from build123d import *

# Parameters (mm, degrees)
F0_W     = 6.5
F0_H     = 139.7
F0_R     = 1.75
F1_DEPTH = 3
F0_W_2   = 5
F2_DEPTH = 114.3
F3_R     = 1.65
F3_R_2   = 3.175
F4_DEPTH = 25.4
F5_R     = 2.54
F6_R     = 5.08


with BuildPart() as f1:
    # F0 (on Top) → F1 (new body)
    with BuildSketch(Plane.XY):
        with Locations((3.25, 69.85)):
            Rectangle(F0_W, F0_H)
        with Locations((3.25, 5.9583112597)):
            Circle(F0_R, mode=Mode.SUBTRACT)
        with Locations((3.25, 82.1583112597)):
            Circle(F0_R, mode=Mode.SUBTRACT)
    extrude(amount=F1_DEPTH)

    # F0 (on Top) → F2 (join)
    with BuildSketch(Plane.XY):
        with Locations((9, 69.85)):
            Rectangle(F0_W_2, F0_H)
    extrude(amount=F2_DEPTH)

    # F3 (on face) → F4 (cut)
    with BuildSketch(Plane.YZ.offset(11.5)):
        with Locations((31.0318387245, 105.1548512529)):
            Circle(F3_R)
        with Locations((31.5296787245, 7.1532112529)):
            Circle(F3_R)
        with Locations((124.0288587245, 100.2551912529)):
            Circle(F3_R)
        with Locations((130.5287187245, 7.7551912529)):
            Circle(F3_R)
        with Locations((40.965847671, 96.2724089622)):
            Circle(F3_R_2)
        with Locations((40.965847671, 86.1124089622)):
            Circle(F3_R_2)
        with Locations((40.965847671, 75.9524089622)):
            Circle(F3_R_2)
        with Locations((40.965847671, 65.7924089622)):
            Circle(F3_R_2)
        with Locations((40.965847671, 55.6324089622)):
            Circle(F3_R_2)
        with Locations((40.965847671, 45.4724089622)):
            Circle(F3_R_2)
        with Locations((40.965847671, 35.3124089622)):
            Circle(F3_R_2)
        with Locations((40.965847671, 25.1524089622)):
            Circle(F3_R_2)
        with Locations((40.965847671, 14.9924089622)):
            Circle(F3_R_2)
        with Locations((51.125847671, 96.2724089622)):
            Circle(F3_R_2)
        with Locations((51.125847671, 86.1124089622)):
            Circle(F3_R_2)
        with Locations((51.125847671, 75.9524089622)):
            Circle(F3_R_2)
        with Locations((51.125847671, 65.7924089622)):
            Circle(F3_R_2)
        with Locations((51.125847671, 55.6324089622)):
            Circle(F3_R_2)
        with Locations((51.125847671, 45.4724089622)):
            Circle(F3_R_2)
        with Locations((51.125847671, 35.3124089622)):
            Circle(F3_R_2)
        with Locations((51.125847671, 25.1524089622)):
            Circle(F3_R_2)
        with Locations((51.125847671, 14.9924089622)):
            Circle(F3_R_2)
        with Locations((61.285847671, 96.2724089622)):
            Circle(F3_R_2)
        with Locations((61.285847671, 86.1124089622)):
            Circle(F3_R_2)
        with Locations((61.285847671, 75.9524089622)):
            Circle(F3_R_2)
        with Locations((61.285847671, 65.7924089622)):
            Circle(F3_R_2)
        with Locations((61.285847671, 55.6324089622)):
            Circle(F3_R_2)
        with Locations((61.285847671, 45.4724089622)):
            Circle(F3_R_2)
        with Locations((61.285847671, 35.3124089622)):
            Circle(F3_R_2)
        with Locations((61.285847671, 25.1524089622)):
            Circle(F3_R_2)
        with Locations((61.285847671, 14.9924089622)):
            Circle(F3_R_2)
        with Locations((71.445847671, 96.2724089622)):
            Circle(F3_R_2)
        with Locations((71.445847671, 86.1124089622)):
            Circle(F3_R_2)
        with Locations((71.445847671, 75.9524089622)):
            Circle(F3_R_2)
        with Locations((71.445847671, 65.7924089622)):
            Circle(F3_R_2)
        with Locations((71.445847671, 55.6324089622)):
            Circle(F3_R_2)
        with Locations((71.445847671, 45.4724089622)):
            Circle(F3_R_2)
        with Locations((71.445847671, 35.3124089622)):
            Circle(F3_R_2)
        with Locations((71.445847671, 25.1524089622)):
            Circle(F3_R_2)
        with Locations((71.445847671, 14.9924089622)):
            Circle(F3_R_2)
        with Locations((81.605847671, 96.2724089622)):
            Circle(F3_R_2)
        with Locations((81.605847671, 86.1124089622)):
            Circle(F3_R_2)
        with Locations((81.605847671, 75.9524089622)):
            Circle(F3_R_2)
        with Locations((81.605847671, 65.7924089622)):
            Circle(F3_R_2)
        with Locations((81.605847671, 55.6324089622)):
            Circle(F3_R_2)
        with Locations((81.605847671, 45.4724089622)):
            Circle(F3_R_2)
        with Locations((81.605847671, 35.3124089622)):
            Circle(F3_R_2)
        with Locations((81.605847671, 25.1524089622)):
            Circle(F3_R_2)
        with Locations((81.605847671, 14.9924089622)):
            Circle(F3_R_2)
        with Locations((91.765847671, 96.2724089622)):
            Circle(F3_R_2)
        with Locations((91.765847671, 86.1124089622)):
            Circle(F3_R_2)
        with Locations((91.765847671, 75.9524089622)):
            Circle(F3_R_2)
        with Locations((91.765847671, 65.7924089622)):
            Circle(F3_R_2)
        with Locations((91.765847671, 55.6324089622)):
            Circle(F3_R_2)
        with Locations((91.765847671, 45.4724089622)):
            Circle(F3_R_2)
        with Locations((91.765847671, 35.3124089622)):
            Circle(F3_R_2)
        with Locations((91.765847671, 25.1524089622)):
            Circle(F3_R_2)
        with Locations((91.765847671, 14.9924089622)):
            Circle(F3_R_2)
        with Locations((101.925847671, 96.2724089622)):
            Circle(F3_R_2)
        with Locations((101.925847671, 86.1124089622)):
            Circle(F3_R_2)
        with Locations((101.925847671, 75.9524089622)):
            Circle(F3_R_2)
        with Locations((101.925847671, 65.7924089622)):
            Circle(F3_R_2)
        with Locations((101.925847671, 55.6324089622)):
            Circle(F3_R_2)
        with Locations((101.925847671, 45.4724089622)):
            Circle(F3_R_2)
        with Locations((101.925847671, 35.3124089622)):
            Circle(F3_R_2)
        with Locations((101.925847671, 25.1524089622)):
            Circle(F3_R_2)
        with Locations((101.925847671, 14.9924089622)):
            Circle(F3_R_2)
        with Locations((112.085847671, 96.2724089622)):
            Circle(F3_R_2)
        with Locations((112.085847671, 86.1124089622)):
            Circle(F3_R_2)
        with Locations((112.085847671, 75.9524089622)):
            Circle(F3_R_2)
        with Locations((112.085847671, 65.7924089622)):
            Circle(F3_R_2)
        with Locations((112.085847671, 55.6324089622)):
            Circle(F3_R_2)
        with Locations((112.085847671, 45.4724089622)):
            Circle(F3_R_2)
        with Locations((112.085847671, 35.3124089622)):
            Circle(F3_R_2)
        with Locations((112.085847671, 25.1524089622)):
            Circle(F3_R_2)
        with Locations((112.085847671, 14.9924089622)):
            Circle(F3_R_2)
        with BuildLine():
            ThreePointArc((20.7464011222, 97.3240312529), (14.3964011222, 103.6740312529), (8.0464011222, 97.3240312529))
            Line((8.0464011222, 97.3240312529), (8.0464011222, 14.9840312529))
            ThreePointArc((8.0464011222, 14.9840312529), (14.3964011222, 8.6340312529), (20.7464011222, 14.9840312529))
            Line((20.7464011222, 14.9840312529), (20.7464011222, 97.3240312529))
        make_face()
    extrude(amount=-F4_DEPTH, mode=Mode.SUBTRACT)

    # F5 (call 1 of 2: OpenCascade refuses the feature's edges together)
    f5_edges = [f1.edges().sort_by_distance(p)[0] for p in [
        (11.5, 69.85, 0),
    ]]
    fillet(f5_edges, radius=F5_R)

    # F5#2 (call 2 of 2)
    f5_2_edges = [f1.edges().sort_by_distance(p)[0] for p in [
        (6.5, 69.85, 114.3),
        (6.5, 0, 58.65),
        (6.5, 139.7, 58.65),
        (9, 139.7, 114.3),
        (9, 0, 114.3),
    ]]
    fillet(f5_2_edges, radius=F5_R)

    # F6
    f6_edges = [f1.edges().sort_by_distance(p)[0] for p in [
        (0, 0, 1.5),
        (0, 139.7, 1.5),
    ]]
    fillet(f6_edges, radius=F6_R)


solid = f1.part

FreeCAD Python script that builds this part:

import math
import FreeCAD as App
import Part
import Sketcher
Q = App.Units.Quantity


def edges_at(feature, points):
    """Names of the edges that pass closest to the given points."""
    edges = feature.Shape.Edges
    near = lambda p: min(range(len(edges)), key=lambda i: edges[i].distToShape(Part.Vertex(*p))[0])
    return sorted({f"Edge{near(p) + 1}" for p in points})

doc = App.newDocument("Part")
body = doc.addObject("PartDesign::Body", "Body")

sketch1 = body.newObject("Sketcher::SketchObject", "Sketch")
sketch1.AttachmentSupport = (doc.getObject("XY_Plane"), [""])
sketch1.MapMode = "FlatFace"
sketch1.addGeometry([
    Part.LineSegment(App.Vector(0, 139.7, 0), App.Vector(0, 0, 0)),
    Part.LineSegment(App.Vector(0, 0, 0), App.Vector(6.5, 0, 0)),
    Part.LineSegment(App.Vector(6.5, 0, 0), App.Vector(6.5, 139.7, 0)),
    Part.LineSegment(App.Vector(6.5, 139.7, 0), App.Vector(0, 139.7, 0)),
    Part.Circle(App.Vector(3.25, 5.958311, 0), App.Vector(0, 0, 1), 1.75),
    Part.Circle(App.Vector(3.25, 82.158311, 0), App.Vector(0, 0, 1), 1.75),
], False)
sketch1.addConstraint([
    Sketcher.Constraint("Coincident", 0, 2, 1, 1),
    Sketcher.Constraint("Coincident", 1, 2, 2, 1),
    Sketcher.Constraint("Coincident", 2, 2, 3, 1),
    Sketcher.Constraint("Coincident", 3, 2, 0, 1),
    Sketcher.Constraint("Vertical", 0),
    Sketcher.Constraint("Horizontal", 1),
    Sketcher.Constraint("Vertical", 2),
    Sketcher.Constraint("Horizontal", 3),
    Sketcher.Constraint("Coincident", 0, 2, -1, 1),
    Sketcher.Constraint("Equal", 4, 5),
    Sketcher.Constraint("Vertical", 4, 3, 5, 3),
    Sketcher.Constraint("DistanceY", 0, 2, 0, 1, Q("5.5 in")),
    Sketcher.Constraint("DistanceY", 4, 3, 5, 3, Q("3 in")),
    Sketcher.Constraint("Diameter", 4, Q("3.5 mm")),
    Sketcher.Constraint("DistanceX", 1, 1, 1, 2, Q("6.5 mm")),
    Sketcher.Constraint("DistanceX", -1, 1, 4, 3, Q("3.25 mm")),
    Sketcher.Constraint("DistanceY", -1, 1, 4, 3, Q("5.958311 mm")),
])
pad1 = body.newObject("PartDesign::Pad", "Pad")
pad1.Profile = sketch1
pad1.Length = 3

sketch2 = body.newObject("Sketcher::SketchObject", "Sketch001")
sketch2.AttachmentSupport = (doc.getObject("XY_Plane"), [""])
sketch2.MapMode = "FlatFace"
sketch2.addGeometry([
    Part.LineSegment(App.Vector(6.5, 139.7, 0), App.Vector(6.5, 0, 0)),
    Part.LineSegment(App.Vector(6.5, 0, 0), App.Vector(11.5, 0, 0)),
    Part.LineSegment(App.Vector(11.5, 0, 0), App.Vector(11.5, 139.7, 0)),
    Part.LineSegment(App.Vector(11.5, 139.7, 0), App.Vector(6.5, 139.7, 0)),
], False)
sketch2.addConstraint([
    Sketcher.Constraint("Coincident", 0, 2, 1, 1),
    Sketcher.Constraint("Coincident", 1, 2, 2, 1),
    Sketcher.Constraint("Coincident", 2, 2, 3, 1),
    Sketcher.Constraint("Coincident", 3, 2, 0, 1),
    Sketcher.Constraint("Vertical", 0),
    Sketcher.Constraint("Horizontal", 1),
    Sketcher.Constraint("Vertical", 2),
    Sketcher.Constraint("Horizontal", 3),
    Sketcher.Constraint("PointOnObject", 0, 2, -1),
    Sketcher.Constraint("DistanceY", 0, 2, 0, 1, Q("5.5 in")),
    Sketcher.Constraint("DistanceX", 1, 1, 1, 2, Q("5 mm")),
    Sketcher.Constraint("DistanceX", -1, 1, 0, 2, Q("6.5 mm")),
])
pad2 = body.newObject("PartDesign::Pad", "Pad001")
pad2.Profile = sketch2
pad2.Length = Q("4.5 in")

sketch3 = body.newObject("Sketcher::SketchObject", "Sketch002")
sketch3.AttachmentSupport = (doc.getObject("YZ_Plane"), [""])
sketch3.MapMode = "FlatFace"
sketch3.AttachmentOffset = App.Placement(App.Vector(0, 0, 11.5), App.Rotation())
sketch3.addGeometry([
    Part.Circle(App.Vector(31.031839, 105.154851, 0), App.Vector(0, 0, 1), 1.65),
    Part.Circle(App.Vector(31.529679, 7.153211, 0), App.Vector(0, 0, 1), 1.65),
    Part.Circle(App.Vector(124.028859, 100.255191, 0), App.Vector(0, 0, 1), 1.65),
    Part.Circle(App.Vector(130.528719, 7.755191, 0), App.Vector(0, 0, 1), 1.65),
    Part.Circle(App.Vector(40.965848, 96.272409, 0), App.Vector(0, 0, 1), 3.175),
    Part.Circle(App.Vector(40.965848, 86.112409, 0), App.Vector(0, 0, 1), 3.175),
    Part.Circle(App.Vector(40.965848, 75.952409, 0), App.Vector(0, 0, 1), 3.175),
    Part.Circle(App.Vector(40.965848, 65.792409, 0), App.Vector(0, 0, 1), 3.175),
    Part.Circle(App.Vector(40.965848, 55.632409, 0), App.Vector(0, 0, 1), 3.175),
    Part.Circle(App.Vector(40.965848, 45.472409, 0), App.Vector(0, 0, 1), 3.175),
    Part.Circle(App.Vector(40.965848, 35.312409, 0), App.Vector(0, 0, 1), 3.175),
    Part.Circle(App.Vector(40.965848, 25.152409, 0), App.Vector(0, 0, 1), 3.175),
    Part.Circle(App.Vector(40.965848, 14.992409, 0), App.Vector(0, 0, 1), 3.175),
    Part.Circle(App.Vector(51.125848, 96.272409, 0), App.Vector(0, 0, 1), 3.175),
    Part.Circle(App.Vector(51.125848, 86.112409, 0), App.Vector(0, 0, 1), 3.175),
    Part.Circle(App.Vector(51.125848, 75.952409, 0), App.Vector(0, 0, 1), 3.175),
    Part.Circle(App.Vector(51.125848, 65.792409, 0), App.Vector(0, 0, 1), 3.175),
    Part.Circle(App.Vector(51.125848, 55.632409, 0), App.Vector(0, 0, 1), 3.175),
    Part.Circle(App.Vector(51.125848, 45.472409, 0), App.Vector(0, 0, 1), 3.175),
    Part.Circle(App.Vector(51.125848, 35.312409, 0), App.Vector(0, 0, 1), 3.175),
    Part.Circle(App.Vector(51.125848, 25.152409, 0), App.Vector(0, 0, 1), 3.175),
    Part.Circle(App.Vector(51.125848, 14.992409, 0), App.Vector(0, 0, 1), 3.175),
    Part.Circle(App.Vector(61.285848, 96.272409, 0), App.Vector(0, 0, 1), 3.175),
    Part.Circle(App.Vector(61.285848, 86.112409, 0), App.Vector(0, 0, 1), 3.175),
    Part.Circle(App.Vector(61.285848, 75.952409, 0), App.Vector(0, 0, 1), 3.175),
    Part.Circle(App.Vector(61.285848, 65.792409, 0), App.Vector(0, 0, 1), 3.175),
    Part.Circle(App.Vector(61.285848, 55.632409, 0), App.Vector(0, 0, 1), 3.175),
    Part.Circle(App.Vector(61.285848, 45.472409, 0), App.Vector(0, 0, 1), 3.175),
    Part.Circle(App.Vector(61.285848, 35.312409, 0), App.Vector(0, 0, 1), 3.175),
    Part.Circle(App.Vector(61.285848, 25.152409, 0), App.Vector(0, 0, 1), 3.175),
    Part.Circle(App.Vector(61.285848, 14.992409, 0), App.Vector(0, 0, 1), 3.175),
    Part.Circle(App.Vector(71.445848, 96.272409, 0), App.Vector(0, 0, 1), 3.175),
    Part.Circle(App.Vector(71.445848, 86.112409, 0), App.Vector(0, 0, 1), 3.175),
    Part.Circle(App.Vector(71.445848, 75.952409, 0), App.Vector(0, 0, 1), 3.175),
    Part.Circle(App.Vector(71.445848, 65.792409, 0), App.Vector(0, 0, 1), 3.175),
    Part.Circle(App.Vector(71.445848, 55.632409, 0), App.Vector(0, 0, 1), 3.175),
    Part.Circle(App.Vector(71.445848, 45.472409, 0), App.Vector(0, 0, 1), 3.175),
    Part.Circle(App.Vector(71.445848, 35.312409, 0), App.Vector(0, 0, 1), 3.175),
    Part.Circle(App.Vector(71.445848, 25.152409, 0), App.Vector(0, 0, 1), 3.175),
    Part.Circle(App.Vector(71.445848, 14.992409, 0), App.Vector(0, 0, 1), 3.175),
    Part.Circle(App.Vector(81.605848, 96.272409, 0), App.Vector(0, 0, 1), 3.175),
    Part.Circle(App.Vector(81.605848, 86.112409, 0), App.Vector(0, 0, 1), 3.175),
    Part.Circle(App.Vector(81.605848, 75.952409, 0), App.Vector(0, 0, 1), 3.175),
    Part.Circle(App.Vector(81.605848, 65.792409, 0), App.Vector(0, 0, 1), 3.175),
    Part.Circle(App.Vector(81.605848, 55.632409, 0), App.Vector(0, 0, 1), 3.175),
    Part.Circle(App.Vector(81.605848, 45.472409, 0), App.Vector(0, 0, 1), 3.175),
    Part.Circle(App.Vector(81.605848, 35.312409, 0), App.Vector(0, 0, 1), 3.175),
    Part.Circle(App.Vector(81.605848, 25.152409, 0), App.Vector(0, 0, 1), 3.175),
    Part.Circle(App.Vector(81.605848, 14.992409, 0), App.Vector(0, 0, 1), 3.175),
    Part.Circle(App.Vector(91.765848, 96.272409, 0), App.Vector(0, 0, 1), 3.175),
    Part.Circle(App.Vector(91.765848, 86.112409, 0), App.Vector(0, 0, 1), 3.175),
    Part.Circle(App.Vector(91.765848, 75.952409, 0), App.Vector(0, 0, 1), 3.175),
    Part.Circle(App.Vector(91.765848, 65.792409, 0), App.Vector(0, 0, 1), 3.175),
    Part.Circle(App.Vector(91.765848, 55.632409, 0), App.Vector(0, 0, 1), 3.175),
    Part.Circle(App.Vector(91.765848, 45.472409, 0), App.Vector(0, 0, 1), 3.175),
    Part.Circle(App.Vector(91.765848, 35.312409, 0), App.Vector(0, 0, 1), 3.175),
    Part.Circle(App.Vector(91.765848, 25.152409, 0), App.Vector(0, 0, 1), 3.175),
    Part.Circle(App.Vector(91.765848, 14.992409, 0), App.Vector(0, 0, 1), 3.175),
    Part.Circle(App.Vector(101.925848, 96.272409, 0), App.Vector(0, 0, 1), 3.175),
    Part.Circle(App.Vector(101.925848, 86.112409, 0), App.Vector(0, 0, 1), 3.175),
    Part.Circle(App.Vector(101.925848, 75.952409, 0), App.Vector(0, 0, 1), 3.175),
    Part.Circle(App.Vector(101.925848, 65.792409, 0), App.Vector(0, 0, 1), 3.175),
    Part.Circle(App.Vector(101.925848, 55.632409, 0), App.Vector(0, 0, 1), 3.175),
    Part.Circle(App.Vector(101.925848, 45.472409, 0), App.Vector(0, 0, 1), 3.175),
    Part.Circle(App.Vector(101.925848, 35.312409, 0), App.Vector(0, 0, 1), 3.175),
    Part.Circle(App.Vector(101.925848, 25.152409, 0), App.Vector(0, 0, 1), 3.175),
    Part.Circle(App.Vector(101.925848, 14.992409, 0), App.Vector(0, 0, 1), 3.175),
    Part.Circle(App.Vector(112.085848, 96.272409, 0), App.Vector(0, 0, 1), 3.175),
    Part.Circle(App.Vector(112.085848, 86.112409, 0), App.Vector(0, 0, 1), 3.175),
    Part.Circle(App.Vector(112.085848, 75.952409, 0), App.Vector(0, 0, 1), 3.175),
    Part.Circle(App.Vector(112.085848, 65.792409, 0), App.Vector(0, 0, 1), 3.175),
    Part.Circle(App.Vector(112.085848, 55.632409, 0), App.Vector(0, 0, 1), 3.175),
    Part.Circle(App.Vector(112.085848, 45.472409, 0), App.Vector(0, 0, 1), 3.175),
    Part.Circle(App.Vector(112.085848, 35.312409, 0), App.Vector(0, 0, 1), 3.175),
    Part.Circle(App.Vector(112.085848, 25.152409, 0), App.Vector(0, 0, 1), 3.175),
    Part.Circle(App.Vector(112.085848, 14.992409, 0), App.Vector(0, 0, 1), 3.175),
    Part.ArcOfCircle(Part.Circle(App.Vector(14.396401, 97.324031, 0), App.Vector(0, 0, 1), 6.35), math.radians(0), math.radians(180)),
    Part.LineSegment(App.Vector(8.046401, 97.324031, 0), App.Vector(8.046401, 14.984031, 0)),
    Part.ArcOfCircle(Part.Circle(App.Vector(14.396401, 14.984031, 0), App.Vector(0, 0, 1), 6.35), math.radians(180), math.radians(360)),
    Part.LineSegment(App.Vector(20.746401, 14.984031, 0), App.Vector(20.746401, 97.324031, 0)),
], False)
sketch3.addConstraint([
    Sketcher.Constraint("Tangent", 76, 2, 77, 1),
    Sketcher.Constraint("Tangent", 77, 2, 78, 1),
    Sketcher.Constraint("Tangent", 78, 2, 79, 1),
    Sketcher.Constraint("Tangent", 79, 2, 76, 1),
    Sketcher.Constraint("Vertical", 77),
    Sketcher.Constraint("Vertical", 79),
    Sketcher.Constraint("Equal", 0, 1),
    Sketcher.Constraint("Equal", 1, 2),
    Sketcher.Constraint("Equal", 2, 3),
    Sketcher.Constraint("Equal", 4, 5),
    Sketcher.Constraint("Equal", 5, 6),
    Sketcher.Constraint("Equal", 6, 7),
    Sketcher.Constraint("Equal", 7, 8),
    Sketcher.Constraint("Equal", 8, 9),
    Sketcher.Constraint("Equal", 9, 10),
    Sketcher.Constraint("Equal", 10, 11),
    Sketcher.Constraint("Equal", 11, 12),
    Sketcher.Constraint("Equal", 12, 13),
    Sketcher.Constraint("Equal", 13, 14),
    Sketcher.Constraint("Equal", 14, 15),
    Sketcher.Constraint("Equal", 15, 16),
    Sketcher.Constraint("Equal", 16, 17),
    Sketcher.Constraint("Equal", 17, 18),
    Sketcher.Constraint("Equal", 18, 19),
    Sketcher.Constraint("Equal", 19, 20),
    Sketcher.Constraint("Equal", 20, 21),
    Sketcher.Constraint("Equal", 21, 22),
    Sketcher.Constraint("Equal", 22, 23),
    Sketcher.Constraint("Equal", 23, 24),
    Sketcher.Constraint("Equal", 24, 25),
    Sketcher.Constraint("Equal", 25, 26),
    Sketcher.Constraint("Equal", 26, 27),
    Sketcher.Constraint("Equal", 27, 28),
    Sketcher.Constraint("Equal", 28, 29),
    Sketcher.Constraint("Equal", 29, 30),
    Sketcher.Constraint("Equal", 30, 31),
    Sketcher.Constraint("Equal", 31, 32),
    Sketcher.Constraint("Equal", 32, 33),
    Sketcher.Constraint("Equal", 33, 34),
    Sketcher.Constraint("Equal", 34, 35),
    Sketcher.Constraint("Equal", 35, 36),
    Sketcher.Constraint("Equal", 36, 37),
    Sketcher.Constraint("Equal", 37, 38),
    Sketcher.Constraint("Equal", 38, 39),
    Sketcher.Constraint("Equal", 39, 40),
    Sketcher.Constraint("Equal", 40, 41),
    Sketcher.Constraint("Equal", 41, 42),
    Sketcher.Constraint("Equal", 42, 43),
    Sketcher.Constraint("Equal", 43, 44),
    Sketcher.Constraint("Equal", 44, 45),
    Sketcher.Constraint("Equal", 45, 46),
    Sketcher.Constraint("Equal", 46, 47),
    Sketcher.Constraint("Equal", 47, 48),
    Sketcher.Constraint("Equal", 48, 49),
    Sketcher.Constraint("Equal", 49, 50),
    Sketcher.Constraint("Equal", 50, 51),
    Sketcher.Constraint("Equal", 51, 52),
    Sketcher.Constraint("Equal", 52, 53),
    Sketcher.Constraint("Equal", 53, 54),
    Sketcher.Constraint("Equal", 54, 55),
    Sketcher.Constraint("Equal", 55, 56),
    Sketcher.Constraint("Equal", 56, 57),
    Sketcher.Constraint("Equal", 57, 58),
    Sketcher.Constraint("Equal", 58, 59),
    Sketcher.Constraint("Equal", 59, 60),
    Sketcher.Constraint("Equal", 60, 61),
    Sketcher.Constraint("Equal", 61, 62),
    Sketcher.Constraint("Equal", 62, 63),
    Sketcher.Constraint("Equal", 63, 64),
    Sketcher.Constraint("Equal", 64, 65),
    Sketcher.Constraint("Equal", 65, 66),
    Sketcher.Constraint("Equal", 66, 67),
    Sketcher.Constraint("Equal", 67, 68),
    Sketcher.Constraint("Equal", 68, 69),
    Sketcher.Constraint("Equal", 69, 70),
    Sketcher.Constraint("Equal", 70, 71),
    Sketcher.Constraint("Equal", 71, 72),
    Sketcher.Constraint("Equal", 72, 73),
    Sketcher.Constraint("Equal", 73, 74),
    Sketcher.Constraint("Equal", 74, 75),
    Sketcher.Constraint("Horizontal", 4, 3, 13, 3),
    Sketcher.Constraint("Horizontal", 5, 3, 14, 3),
    Sketcher.Constraint("Horizontal", 6, 3, 15, 3),
    Sketcher.Constraint("Horizontal", 7, 3, 16, 3),
    Sketcher.Constraint("Horizontal", 8, 3, 17, 3),
    Sketcher.Constraint("Horizontal", 9, 3, 18, 3),
    Sketcher.Constraint("Horizontal", 10, 3, 19, 3),
    Sketcher.Constraint("Horizontal", 11, 3, 20, 3),
    Sketcher.Constraint("Horizontal", 12, 3, 21, 3),
    Sketcher.Constraint("Horizontal", 13, 3, 22, 3),
    Sketcher.Constraint("Horizontal", 14, 3, 23, 3),
    Sketcher.Constraint("Horizontal", 15, 3, 24, 3),
    Sketcher.Constraint("Horizontal", 16, 3, 25, 3),
    Sketcher.Constraint("Horizontal", 17, 3, 26, 3),
    Sketcher.Constraint("Horizontal", 18, 3, 27, 3),
    Sketcher.Constraint("Horizontal", 19, 3, 28, 3),
    Sketcher.Constraint("Horizontal", 20, 3, 29, 3),
    Sketcher.Constraint("Horizontal", 21, 3, 30, 3),
    Sketcher.Constraint("Horizontal", 22, 3, 31, 3),
    Sketcher.Constraint("Horizontal", 23, 3, 32, 3),
    Sketcher.Constraint("Horizontal", 24, 3, 33, 3),
    Sketcher.Constraint("Horizontal", 25, 3, 34, 3),
    Sketcher.Constraint("Horizontal", 26, 3, 35, 3),
    Sketcher.Constraint("Horizontal", 27, 3, 36, 3),
    Sketcher.Constraint("Horizontal", 28, 3, 37, 3),
    Sketcher.Constraint("Horizontal", 29, 3, 38, 3),
    Sketcher.Constraint("Horizontal", 30, 3, 39, 3),
    Sketcher.Constraint("Horizontal", 31, 3, 40, 3),
    Sketcher.Constraint("Horizontal", 32, 3, 41, 3),
    Sketcher.Constraint("Horizontal", 33, 3, 42, 3),
    Sketcher.Constraint("Horizontal", 34, 3, 43, 3),
    Sketcher.Constraint("Horizontal", 35, 3, 44, 3),
    Sketcher.Constraint("Horizontal", 36, 3, 45, 3),
    Sketcher.Constraint("Horizontal", 37, 3, 46, 3),
    Sketcher.Constraint("Horizontal", 38, 3, 47, 3),
    Sketcher.Constraint("Horizontal", 39, 3, 48, 3),
    Sketcher.Constraint("Horizontal", 40, 3, 49, 3),
    Sketcher.Constraint("Horizontal", 41, 3, 50, 3),
    Sketcher.Constraint("Horizontal", 42, 3, 51, 3),
    Sketcher.Constraint("Horizontal", 43, 3, 52, 3),
    Sketcher.Constraint("Horizontal", 44, 3, 53, 3),
    Sketcher.Constraint("Horizontal", 45, 3, 54, 3),
    Sketcher.Constraint("Horizontal", 46, 3, 55, 3),
    Sketcher.Constraint("Horizontal", 47, 3, 56, 3),
    Sketcher.Constraint("Horizontal", 48, 3, 57, 3),
    Sketcher.Constraint("Horizontal", 49, 3, 58, 3),
    Sketcher.Constraint("Horizontal", 50, 3, 59, 3),
    Sketcher.Constraint("Horizontal", 51, 3, 60, 3),
    Sketcher.Constraint("Horizontal", 52, 3, 61, 3),
    Sketcher.Constraint("Horizontal", 53, 3, 62, 3),
    Sketcher.Constraint("Horizontal", 54, 3, 63, 3),
    Sketcher.Constraint("Horizontal", 55, 3, 64, 3),
    Sketcher.Constraint("Horizontal", 56, 3, 65, 3),
    Sketcher.Constraint("Horizontal", 57, 3, 66, 3),
    Sketcher.Constraint("Horizontal", 58, 3, 67, 3),
    Sketcher.Constraint("Horizontal", 59, 3, 68, 3),
    Sketcher.Constraint("Horizontal", 60, 3, 69, 3),
    Sketcher.Constraint("Horizontal", 61, 3, 70, 3),
    Sketcher.Constraint("Horizontal", 62, 3, 71, 3),
    Sketcher.Constraint("Horizontal", 63, 3, 72, 3),
    Sketcher.Constraint("Horizontal", 64, 3, 73, 3),
    Sketcher.Constraint("Horizontal", 65, 3, 74, 3),
    Sketcher.Constraint("Horizontal", 66, 3, 75, 3),
    Sketcher.Constraint("Vertical", 4, 3, 5, 3),
    Sketcher.Constraint("Vertical", 5, 3, 6, 3),
    Sketcher.Constraint("Vertical", 6, 3, 7, 3),
    Sketcher.Constraint("Vertical", 7, 3, 8, 3),
    Sketcher.Constraint("Vertical", 8, 3, 9, 3),
    Sketcher.Constraint("Vertical", 9, 3, 10, 3),
    Sketcher.Constraint("Vertical", 10, 3, 11, 3),
    Sketcher.Constraint("Vertical", 11, 3, 12, 3),
    Sketcher.Constraint("Vertical", 13, 3, 14, 3),
    Sketcher.Constraint("Vertical", 14, 3, 15, 3),
    Sketcher.Constraint("Vertical", 15, 3, 16, 3),
    Sketcher.Constraint("Vertical", 16, 3, 17, 3),
    Sketcher.Constraint("Vertical", 17, 3, 18, 3),
    Sketcher.Constraint("Vertical", 18, 3, 19, 3),
    Sketcher.Constraint("Vertical", 19, 3, 20, 3),
    Sketcher.Constraint("Vertical", 20, 3, 21, 3),
    Sketcher.Constraint("Vertical", 22, 3, 23, 3),
    Sketcher.Constraint("Vertical", 23, 3, 24, 3),
    Sketcher.Constraint("Vertical", 24, 3, 25, 3),
    Sketcher.Constraint("Vertical", 25, 3, 26, 3),
    Sketcher.Constraint("Vertical", 26, 3, 27, 3),
    Sketcher.Constraint("Vertical", 27, 3, 28, 3),
    Sketcher.Constraint("Vertical", 28, 3, 29, 3),
    Sketcher.Constraint("Vertical", 29, 3, 30, 3),
    Sketcher.Constraint("Vertical", 31, 3, 32, 3),
    Sketcher.Constraint("Vertical", 32, 3, 33, 3),
    Sketcher.Constraint("Vertical", 33, 3, 34, 3),
    Sketcher.Constraint("Vertical", 34, 3, 35, 3),
    Sketcher.Constraint("Vertical", 35, 3, 36, 3),
    Sketcher.Constraint("Vertical", 36, 3, 37, 3),
    Sketcher.Constraint("Vertical", 37, 3, 38, 3),
    Sketcher.Constraint("Vertical", 38, 3, 39, 3),
    Sketcher.Constraint("Vertical", 40, 3, 41, 3),
    Sketcher.Constraint("Vertical", 41, 3, 42, 3),
    Sketcher.Constraint("Vertical", 42, 3, 43, 3),
    Sketcher.Constraint("Vertical", 43, 3, 44, 3),
    Sketcher.Constraint("Vertical", 44, 3, 45, 3),
    Sketcher.Constraint("Vertical", 45, 3, 46, 3),
    Sketcher.Constraint("Vertical", 46, 3, 47, 3),
    Sketcher.Constraint("Vertical", 47, 3, 48, 3),
    Sketcher.Constraint("Vertical", 49, 3, 50, 3),
    Sketcher.Constraint("Vertical", 50, 3, 51, 3),
    Sketcher.Constraint("Vertical", 51, 3, 52, 3),
    Sketcher.Constraint("Vertical", 52, 3, 53, 3),
    Sketcher.Constraint("Vertical", 53, 3, 54, 3),
    Sketcher.Constraint("Vertical", 54, 3, 55, 3),
    Sketcher.Constraint("Vertical", 55, 3, 56, 3),
    Sketcher.Constraint("Vertical", 56, 3, 57, 3),
    Sketcher.Constraint("Vertical", 58, 3, 59, 3),
    Sketcher.Constraint("Vertical", 59, 3, 60, 3),
    Sketcher.Constraint("Vertical", 60, 3, 61, 3),
    Sketcher.Constraint("Vertical", 61, 3, 62, 3),
    Sketcher.Constraint("Vertical", 62, 3, 63, 3),
    Sketcher.Constraint("Vertical", 63, 3, 64, 3),
    Sketcher.Constraint("Vertical", 64, 3, 65, 3),
    Sketcher.Constraint("Vertical", 65, 3, 66, 3),
    Sketcher.Constraint("Vertical", 67, 3, 68, 3),
    Sketcher.Constraint("Vertical", 68, 3, 69, 3),
    Sketcher.Constraint("Vertical", 69, 3, 70, 3),
    Sketcher.Constraint("Vertical", 70, 3, 71, 3),
    Sketcher.Constraint("Vertical", 71, 3, 72, 3),
    Sketcher.Constraint("Vertical", 72, 3, 73, 3),
    Sketcher.Constraint("Vertical", 73, 3, 74, 3),
    Sketcher.Constraint("Vertical", 74, 3, 75, 3),
    Sketcher.Constraint("Diameter", 4, Q("0.25 in")),
    Sketcher.Constraint("Radius", 76, Q("0.25 in")),
    Sketcher.Constraint("Diameter", 0, Q("3.3 mm")),
    Sketcher.Constraint("DistanceY", 77, 2, 77, 1, Q("82.34 mm")),
    Sketcher.Constraint("DistanceX", -1, 1, 76, 3, Q("14.396401 mm")),
    Sketcher.Constraint("DistanceX", -1, 1, 0, 3, Q("31.031839 mm")),
    Sketcher.Constraint("DistanceY", -1, 1, 0, 3, Q("105.154851 mm")),
    Sketcher.Constraint("DistanceX", -1, 1, 1, 3, Q("31.529679 mm")),
    Sketcher.Constraint("DistanceY", -1, 1, 1, 3, Q("7.153211 mm")),
    Sketcher.Constraint("DistanceX", -1, 1, 2, 3, Q("124.028859 mm")),
    Sketcher.Constraint("DistanceY", -1, 1, 2, 3, Q("100.255191 mm")),
    Sketcher.Constraint("DistanceX", -1, 1, 3, 3, Q("130.528719 mm")),
    Sketcher.Constraint("DistanceY", -1, 1, 3, 3, Q("7.755191 mm")),
    Sketcher.Constraint("DistanceY", -1, 1, 4, 3, Q("96.272409 mm")),
    Sketcher.Constraint("DistanceY", -1, 1, 5, 3, Q("86.112409 mm")),
    Sketcher.Constraint("DistanceY", -1, 1, 6, 3, Q("75.952409 mm")),
    Sketcher.Constraint("DistanceY", -1, 1, 7, 3, Q("65.792409 mm")),
    Sketcher.Constraint("DistanceY", -1, 1, 8, 3, Q("55.632409 mm")),
    Sketcher.Constraint("DistanceY", -1, 1, 9, 3, Q("45.472409 mm")),
    Sketcher.Constraint("DistanceY", -1, 1, 10, 3, Q("35.312409 mm")),
    Sketcher.Constraint("DistanceY", -1, 1, 11, 3, Q("25.152409 mm")),
    Sketcher.Constraint("DistanceY", -1, 1, 12, 3, Q("14.992409 mm")),
    Sketcher.Constraint("DistanceY", -1, 1, 76, 3, Q("97.324031 mm")),
    Sketcher.Constraint("DistanceX", -1, 1, 4, 3, Q("40.965848 mm")),
    Sketcher.Constraint("DistanceX", -1, 1, 13, 3, Q("51.125848 mm")),
    Sketcher.Constraint("DistanceX", -1, 1, 22, 3, Q("61.285848 mm")),
    Sketcher.Constraint("DistanceX", -1, 1, 31, 3, Q("71.445848 mm")),
    Sketcher.Constraint("DistanceX", -1, 1, 40, 3, Q("81.605848 mm")),
    Sketcher.Constraint("DistanceX", -1, 1, 49, 3, Q("91.765848 mm")),
    Sketcher.Constraint("DistanceX", -1, 1, 58, 3, Q("101.925848 mm")),
    Sketcher.Constraint("DistanceX", -1, 1, 67, 3, Q("112.085848 mm")),
])
pocket1 = body.newObject("PartDesign::Pocket", "Pocket")
pocket1.Profile = sketch3
pocket1.Length = Q("1 in")
doc.recompute()

fillet = body.newObject("PartDesign::Fillet", "Fillet")
fillet.Base = (pocket1, edges_at(pocket1, [(11.5, 69.85, 0)]))
fillet.Radius = Q("0.1 in")
doc.recompute()

fillet2 = body.newObject("PartDesign::Fillet", "Fillet001")
fillet2.Base = (fillet, edges_at(fillet, [
    (6.5, 69.85, 114.3),
    (6.5, 0, 58.65),
    (6.5, 139.7, 58.65),
    (9, 139.7, 114.3),
    (9, 0, 114.3),
]))
fillet2.Radius = Q("0.1 in")
doc.recompute()

fillet3 = body.newObject("PartDesign::Fillet", "Fillet002")
fillet3.Base = (fillet2, edges_at(fillet2, [(0, 0, 1.5), (0, 139.7, 1.5)]))
fillet3.Radius = Q("0.2 in")

doc.recompute()
